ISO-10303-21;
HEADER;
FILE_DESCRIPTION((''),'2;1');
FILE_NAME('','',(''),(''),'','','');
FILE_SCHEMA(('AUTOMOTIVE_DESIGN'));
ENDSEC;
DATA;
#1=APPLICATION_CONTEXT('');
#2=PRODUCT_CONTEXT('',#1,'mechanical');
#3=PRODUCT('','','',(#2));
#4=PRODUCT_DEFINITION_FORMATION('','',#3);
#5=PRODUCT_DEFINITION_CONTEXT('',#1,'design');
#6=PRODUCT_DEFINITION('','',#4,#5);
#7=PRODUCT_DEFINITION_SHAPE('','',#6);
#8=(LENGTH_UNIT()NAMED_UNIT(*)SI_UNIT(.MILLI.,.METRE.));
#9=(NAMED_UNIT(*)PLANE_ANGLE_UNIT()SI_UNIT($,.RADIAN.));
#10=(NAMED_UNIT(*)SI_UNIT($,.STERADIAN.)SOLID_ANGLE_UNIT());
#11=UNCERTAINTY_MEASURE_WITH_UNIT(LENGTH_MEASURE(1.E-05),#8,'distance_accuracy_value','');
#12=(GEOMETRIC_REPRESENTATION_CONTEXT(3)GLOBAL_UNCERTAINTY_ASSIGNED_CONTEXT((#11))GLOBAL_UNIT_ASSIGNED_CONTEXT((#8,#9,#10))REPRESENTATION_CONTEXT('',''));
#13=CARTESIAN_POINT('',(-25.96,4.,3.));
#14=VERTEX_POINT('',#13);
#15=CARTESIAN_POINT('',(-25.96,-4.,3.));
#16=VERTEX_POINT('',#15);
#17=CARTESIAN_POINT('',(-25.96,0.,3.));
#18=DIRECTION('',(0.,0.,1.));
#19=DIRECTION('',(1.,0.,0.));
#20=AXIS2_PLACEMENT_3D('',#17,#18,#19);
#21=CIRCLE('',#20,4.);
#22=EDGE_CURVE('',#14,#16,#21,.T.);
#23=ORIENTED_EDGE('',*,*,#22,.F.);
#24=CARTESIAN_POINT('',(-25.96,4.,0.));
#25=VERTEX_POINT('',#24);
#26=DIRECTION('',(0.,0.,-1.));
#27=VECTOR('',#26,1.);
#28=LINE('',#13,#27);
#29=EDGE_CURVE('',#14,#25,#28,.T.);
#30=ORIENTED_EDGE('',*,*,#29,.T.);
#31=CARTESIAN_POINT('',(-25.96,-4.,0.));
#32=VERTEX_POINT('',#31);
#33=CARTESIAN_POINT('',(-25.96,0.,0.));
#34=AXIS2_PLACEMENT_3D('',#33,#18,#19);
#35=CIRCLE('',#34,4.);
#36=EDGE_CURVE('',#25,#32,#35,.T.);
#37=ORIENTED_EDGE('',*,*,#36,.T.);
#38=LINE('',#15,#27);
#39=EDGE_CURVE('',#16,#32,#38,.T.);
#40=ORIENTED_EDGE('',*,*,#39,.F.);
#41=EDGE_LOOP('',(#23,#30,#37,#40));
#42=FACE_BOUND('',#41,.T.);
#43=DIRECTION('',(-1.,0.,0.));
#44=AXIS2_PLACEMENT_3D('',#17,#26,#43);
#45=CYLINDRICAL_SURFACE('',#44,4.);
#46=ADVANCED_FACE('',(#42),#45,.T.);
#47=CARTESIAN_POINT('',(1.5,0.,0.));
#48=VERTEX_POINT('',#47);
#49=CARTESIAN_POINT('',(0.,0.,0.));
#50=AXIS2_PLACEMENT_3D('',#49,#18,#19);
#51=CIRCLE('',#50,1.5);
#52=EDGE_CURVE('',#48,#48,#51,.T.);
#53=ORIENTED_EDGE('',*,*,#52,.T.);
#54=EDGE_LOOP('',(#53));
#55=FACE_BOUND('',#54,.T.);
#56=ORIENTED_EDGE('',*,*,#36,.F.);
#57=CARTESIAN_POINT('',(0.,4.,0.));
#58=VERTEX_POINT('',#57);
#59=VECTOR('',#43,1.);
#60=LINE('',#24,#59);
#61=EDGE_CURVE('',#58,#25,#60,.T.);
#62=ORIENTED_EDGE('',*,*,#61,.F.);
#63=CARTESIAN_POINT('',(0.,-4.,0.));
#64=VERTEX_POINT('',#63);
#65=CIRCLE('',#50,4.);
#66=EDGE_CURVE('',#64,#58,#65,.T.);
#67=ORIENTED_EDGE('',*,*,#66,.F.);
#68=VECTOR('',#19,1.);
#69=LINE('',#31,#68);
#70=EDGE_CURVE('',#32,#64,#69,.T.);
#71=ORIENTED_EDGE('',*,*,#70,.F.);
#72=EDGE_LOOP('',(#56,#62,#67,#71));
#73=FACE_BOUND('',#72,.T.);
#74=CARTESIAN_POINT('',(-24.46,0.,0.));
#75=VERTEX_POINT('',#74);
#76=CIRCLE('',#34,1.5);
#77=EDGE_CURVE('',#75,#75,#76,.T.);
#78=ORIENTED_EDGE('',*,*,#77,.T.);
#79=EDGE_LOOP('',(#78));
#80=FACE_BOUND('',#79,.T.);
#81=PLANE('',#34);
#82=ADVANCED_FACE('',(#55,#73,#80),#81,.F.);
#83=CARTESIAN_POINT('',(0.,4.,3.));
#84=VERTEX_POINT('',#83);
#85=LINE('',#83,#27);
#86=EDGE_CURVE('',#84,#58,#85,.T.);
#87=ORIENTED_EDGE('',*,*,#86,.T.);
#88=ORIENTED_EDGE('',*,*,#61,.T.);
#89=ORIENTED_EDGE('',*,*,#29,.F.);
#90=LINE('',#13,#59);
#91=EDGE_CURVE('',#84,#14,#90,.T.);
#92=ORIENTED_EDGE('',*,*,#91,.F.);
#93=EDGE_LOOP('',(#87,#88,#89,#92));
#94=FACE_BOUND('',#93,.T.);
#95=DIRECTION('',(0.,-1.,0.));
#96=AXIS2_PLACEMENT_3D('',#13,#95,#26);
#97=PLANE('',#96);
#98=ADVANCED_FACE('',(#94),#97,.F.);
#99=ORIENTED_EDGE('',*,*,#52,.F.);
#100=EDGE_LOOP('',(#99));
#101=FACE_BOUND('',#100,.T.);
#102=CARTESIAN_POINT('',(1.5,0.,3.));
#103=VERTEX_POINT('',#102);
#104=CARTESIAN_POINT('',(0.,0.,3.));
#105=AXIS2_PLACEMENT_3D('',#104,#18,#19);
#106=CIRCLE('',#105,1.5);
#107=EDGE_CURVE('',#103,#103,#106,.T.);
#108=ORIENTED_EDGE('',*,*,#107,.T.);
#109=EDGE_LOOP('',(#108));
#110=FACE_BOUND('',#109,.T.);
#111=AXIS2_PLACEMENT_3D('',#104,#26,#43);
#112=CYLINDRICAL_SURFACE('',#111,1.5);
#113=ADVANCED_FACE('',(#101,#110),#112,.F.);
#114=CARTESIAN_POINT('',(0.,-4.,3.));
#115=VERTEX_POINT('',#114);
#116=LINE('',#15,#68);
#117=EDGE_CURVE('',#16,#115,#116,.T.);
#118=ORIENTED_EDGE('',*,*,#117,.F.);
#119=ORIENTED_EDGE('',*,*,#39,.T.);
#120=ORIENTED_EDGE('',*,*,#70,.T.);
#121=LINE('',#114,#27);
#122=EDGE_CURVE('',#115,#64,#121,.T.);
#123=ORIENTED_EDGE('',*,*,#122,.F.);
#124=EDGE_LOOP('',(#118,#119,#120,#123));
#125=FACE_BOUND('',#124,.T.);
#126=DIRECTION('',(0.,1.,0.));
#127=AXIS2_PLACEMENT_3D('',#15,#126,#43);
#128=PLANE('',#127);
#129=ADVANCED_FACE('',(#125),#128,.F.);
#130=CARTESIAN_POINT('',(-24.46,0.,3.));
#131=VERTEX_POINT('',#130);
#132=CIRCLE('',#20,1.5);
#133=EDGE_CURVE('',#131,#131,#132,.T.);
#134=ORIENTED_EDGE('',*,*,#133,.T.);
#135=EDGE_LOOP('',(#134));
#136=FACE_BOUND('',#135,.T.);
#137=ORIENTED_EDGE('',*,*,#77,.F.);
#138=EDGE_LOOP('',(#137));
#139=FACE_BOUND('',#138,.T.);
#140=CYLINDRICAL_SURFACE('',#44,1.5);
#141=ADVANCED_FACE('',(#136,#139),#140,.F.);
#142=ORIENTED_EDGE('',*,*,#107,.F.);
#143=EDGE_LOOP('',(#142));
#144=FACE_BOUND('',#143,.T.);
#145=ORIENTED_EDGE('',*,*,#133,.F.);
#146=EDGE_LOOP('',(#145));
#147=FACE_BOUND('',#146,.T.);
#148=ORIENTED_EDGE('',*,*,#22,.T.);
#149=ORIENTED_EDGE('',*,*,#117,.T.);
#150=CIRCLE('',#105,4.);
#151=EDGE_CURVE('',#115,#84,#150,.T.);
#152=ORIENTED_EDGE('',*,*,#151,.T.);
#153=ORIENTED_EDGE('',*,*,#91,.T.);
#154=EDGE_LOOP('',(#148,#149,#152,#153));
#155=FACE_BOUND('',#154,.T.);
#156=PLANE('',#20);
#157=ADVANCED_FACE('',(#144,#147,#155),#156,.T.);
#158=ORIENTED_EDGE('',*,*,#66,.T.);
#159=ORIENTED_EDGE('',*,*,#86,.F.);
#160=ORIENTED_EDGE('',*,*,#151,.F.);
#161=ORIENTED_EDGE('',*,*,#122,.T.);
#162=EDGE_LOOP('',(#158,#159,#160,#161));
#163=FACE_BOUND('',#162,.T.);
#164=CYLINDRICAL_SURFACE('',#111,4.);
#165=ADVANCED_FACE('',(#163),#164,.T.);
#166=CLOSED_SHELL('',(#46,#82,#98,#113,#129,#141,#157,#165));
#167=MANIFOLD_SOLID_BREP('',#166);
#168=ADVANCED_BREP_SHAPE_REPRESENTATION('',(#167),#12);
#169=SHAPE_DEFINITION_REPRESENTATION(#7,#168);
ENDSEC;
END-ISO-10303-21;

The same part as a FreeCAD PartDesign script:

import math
import FreeCAD as App
import Part
import Sketcher

doc = App.newDocument("Part")
body = doc.addObject("PartDesign::Body", "Body")

# Sketch on XY plane
sketch1 = body.newObject("Sketcher::SketchObject", "Sketch")
sketch1.AttachmentSupport = (doc.getObject("XY_Plane"), [""])
sketch1.MapMode = "FlatFace"
sketch1.addGeometry([
    Part.LineSegment(App.Vector(0, 4, 0), App.Vector(-26, 4, 0)),  # 0
    Part.ArcOfCircle(Part.Circle(App.Vector(-26, 0, 0), App.Vector(0, 0, 1), 4), math.radians(90), math.radians(270)),  # 1
    Part.LineSegment(App.Vector(-26, -4, 0), App.Vector(0, -4, 0)),  # 2
    Part.ArcOfCircle(Part.Circle(App.Vector(0, 0, 0), App.Vector(0, 0, 1), 4), math.radians(-90), math.radians(90)),  # 3
    Part.Circle(App.Vector(0, 0, 0), App.Vector(0, 0, 1), 1.5),  # 4
    Part.Circle(App.Vector(-26, 0, 0), App.Vector(0, 0, 1), 1.5),  # 5
], False)
sketch1.addConstraint([
    Sketcher.Constraint("Tangent", 0, 2, 1, 1),
    Sketcher.Constraint("Tangent", 1, 2, 2, 1),
    Sketcher.Constraint("Tangent", 2, 2, 3, 1),
    Sketcher.Constraint("Tangent", 3, 2, 0, 1),
    Sketcher.Constraint("Horizontal", 0),
    Sketcher.Constraint("Horizontal", 2),
    Sketcher.Constraint("Coincident", 3, 3, -1, 1),
    Sketcher.Constraint("Coincident", 4, 3, -1, 1),
    Sketcher.Constraint("Coincident", 5, 3, 1, 3),
    Sketcher.Constraint("Equal", 4, 5),
    Sketcher.Constraint("Diameter", 4, 3.0),
    Sketcher.Constraint("Radius", 1, 4.0),
    Sketcher.Constraint("DistanceX", 0, 2, 0, 1, 25.96),
])
pad1 = body.newObject("PartDesign::Pad", "Pad")
pad1.Profile = sketch1
pad1.Length = 3

doc.recompute()
